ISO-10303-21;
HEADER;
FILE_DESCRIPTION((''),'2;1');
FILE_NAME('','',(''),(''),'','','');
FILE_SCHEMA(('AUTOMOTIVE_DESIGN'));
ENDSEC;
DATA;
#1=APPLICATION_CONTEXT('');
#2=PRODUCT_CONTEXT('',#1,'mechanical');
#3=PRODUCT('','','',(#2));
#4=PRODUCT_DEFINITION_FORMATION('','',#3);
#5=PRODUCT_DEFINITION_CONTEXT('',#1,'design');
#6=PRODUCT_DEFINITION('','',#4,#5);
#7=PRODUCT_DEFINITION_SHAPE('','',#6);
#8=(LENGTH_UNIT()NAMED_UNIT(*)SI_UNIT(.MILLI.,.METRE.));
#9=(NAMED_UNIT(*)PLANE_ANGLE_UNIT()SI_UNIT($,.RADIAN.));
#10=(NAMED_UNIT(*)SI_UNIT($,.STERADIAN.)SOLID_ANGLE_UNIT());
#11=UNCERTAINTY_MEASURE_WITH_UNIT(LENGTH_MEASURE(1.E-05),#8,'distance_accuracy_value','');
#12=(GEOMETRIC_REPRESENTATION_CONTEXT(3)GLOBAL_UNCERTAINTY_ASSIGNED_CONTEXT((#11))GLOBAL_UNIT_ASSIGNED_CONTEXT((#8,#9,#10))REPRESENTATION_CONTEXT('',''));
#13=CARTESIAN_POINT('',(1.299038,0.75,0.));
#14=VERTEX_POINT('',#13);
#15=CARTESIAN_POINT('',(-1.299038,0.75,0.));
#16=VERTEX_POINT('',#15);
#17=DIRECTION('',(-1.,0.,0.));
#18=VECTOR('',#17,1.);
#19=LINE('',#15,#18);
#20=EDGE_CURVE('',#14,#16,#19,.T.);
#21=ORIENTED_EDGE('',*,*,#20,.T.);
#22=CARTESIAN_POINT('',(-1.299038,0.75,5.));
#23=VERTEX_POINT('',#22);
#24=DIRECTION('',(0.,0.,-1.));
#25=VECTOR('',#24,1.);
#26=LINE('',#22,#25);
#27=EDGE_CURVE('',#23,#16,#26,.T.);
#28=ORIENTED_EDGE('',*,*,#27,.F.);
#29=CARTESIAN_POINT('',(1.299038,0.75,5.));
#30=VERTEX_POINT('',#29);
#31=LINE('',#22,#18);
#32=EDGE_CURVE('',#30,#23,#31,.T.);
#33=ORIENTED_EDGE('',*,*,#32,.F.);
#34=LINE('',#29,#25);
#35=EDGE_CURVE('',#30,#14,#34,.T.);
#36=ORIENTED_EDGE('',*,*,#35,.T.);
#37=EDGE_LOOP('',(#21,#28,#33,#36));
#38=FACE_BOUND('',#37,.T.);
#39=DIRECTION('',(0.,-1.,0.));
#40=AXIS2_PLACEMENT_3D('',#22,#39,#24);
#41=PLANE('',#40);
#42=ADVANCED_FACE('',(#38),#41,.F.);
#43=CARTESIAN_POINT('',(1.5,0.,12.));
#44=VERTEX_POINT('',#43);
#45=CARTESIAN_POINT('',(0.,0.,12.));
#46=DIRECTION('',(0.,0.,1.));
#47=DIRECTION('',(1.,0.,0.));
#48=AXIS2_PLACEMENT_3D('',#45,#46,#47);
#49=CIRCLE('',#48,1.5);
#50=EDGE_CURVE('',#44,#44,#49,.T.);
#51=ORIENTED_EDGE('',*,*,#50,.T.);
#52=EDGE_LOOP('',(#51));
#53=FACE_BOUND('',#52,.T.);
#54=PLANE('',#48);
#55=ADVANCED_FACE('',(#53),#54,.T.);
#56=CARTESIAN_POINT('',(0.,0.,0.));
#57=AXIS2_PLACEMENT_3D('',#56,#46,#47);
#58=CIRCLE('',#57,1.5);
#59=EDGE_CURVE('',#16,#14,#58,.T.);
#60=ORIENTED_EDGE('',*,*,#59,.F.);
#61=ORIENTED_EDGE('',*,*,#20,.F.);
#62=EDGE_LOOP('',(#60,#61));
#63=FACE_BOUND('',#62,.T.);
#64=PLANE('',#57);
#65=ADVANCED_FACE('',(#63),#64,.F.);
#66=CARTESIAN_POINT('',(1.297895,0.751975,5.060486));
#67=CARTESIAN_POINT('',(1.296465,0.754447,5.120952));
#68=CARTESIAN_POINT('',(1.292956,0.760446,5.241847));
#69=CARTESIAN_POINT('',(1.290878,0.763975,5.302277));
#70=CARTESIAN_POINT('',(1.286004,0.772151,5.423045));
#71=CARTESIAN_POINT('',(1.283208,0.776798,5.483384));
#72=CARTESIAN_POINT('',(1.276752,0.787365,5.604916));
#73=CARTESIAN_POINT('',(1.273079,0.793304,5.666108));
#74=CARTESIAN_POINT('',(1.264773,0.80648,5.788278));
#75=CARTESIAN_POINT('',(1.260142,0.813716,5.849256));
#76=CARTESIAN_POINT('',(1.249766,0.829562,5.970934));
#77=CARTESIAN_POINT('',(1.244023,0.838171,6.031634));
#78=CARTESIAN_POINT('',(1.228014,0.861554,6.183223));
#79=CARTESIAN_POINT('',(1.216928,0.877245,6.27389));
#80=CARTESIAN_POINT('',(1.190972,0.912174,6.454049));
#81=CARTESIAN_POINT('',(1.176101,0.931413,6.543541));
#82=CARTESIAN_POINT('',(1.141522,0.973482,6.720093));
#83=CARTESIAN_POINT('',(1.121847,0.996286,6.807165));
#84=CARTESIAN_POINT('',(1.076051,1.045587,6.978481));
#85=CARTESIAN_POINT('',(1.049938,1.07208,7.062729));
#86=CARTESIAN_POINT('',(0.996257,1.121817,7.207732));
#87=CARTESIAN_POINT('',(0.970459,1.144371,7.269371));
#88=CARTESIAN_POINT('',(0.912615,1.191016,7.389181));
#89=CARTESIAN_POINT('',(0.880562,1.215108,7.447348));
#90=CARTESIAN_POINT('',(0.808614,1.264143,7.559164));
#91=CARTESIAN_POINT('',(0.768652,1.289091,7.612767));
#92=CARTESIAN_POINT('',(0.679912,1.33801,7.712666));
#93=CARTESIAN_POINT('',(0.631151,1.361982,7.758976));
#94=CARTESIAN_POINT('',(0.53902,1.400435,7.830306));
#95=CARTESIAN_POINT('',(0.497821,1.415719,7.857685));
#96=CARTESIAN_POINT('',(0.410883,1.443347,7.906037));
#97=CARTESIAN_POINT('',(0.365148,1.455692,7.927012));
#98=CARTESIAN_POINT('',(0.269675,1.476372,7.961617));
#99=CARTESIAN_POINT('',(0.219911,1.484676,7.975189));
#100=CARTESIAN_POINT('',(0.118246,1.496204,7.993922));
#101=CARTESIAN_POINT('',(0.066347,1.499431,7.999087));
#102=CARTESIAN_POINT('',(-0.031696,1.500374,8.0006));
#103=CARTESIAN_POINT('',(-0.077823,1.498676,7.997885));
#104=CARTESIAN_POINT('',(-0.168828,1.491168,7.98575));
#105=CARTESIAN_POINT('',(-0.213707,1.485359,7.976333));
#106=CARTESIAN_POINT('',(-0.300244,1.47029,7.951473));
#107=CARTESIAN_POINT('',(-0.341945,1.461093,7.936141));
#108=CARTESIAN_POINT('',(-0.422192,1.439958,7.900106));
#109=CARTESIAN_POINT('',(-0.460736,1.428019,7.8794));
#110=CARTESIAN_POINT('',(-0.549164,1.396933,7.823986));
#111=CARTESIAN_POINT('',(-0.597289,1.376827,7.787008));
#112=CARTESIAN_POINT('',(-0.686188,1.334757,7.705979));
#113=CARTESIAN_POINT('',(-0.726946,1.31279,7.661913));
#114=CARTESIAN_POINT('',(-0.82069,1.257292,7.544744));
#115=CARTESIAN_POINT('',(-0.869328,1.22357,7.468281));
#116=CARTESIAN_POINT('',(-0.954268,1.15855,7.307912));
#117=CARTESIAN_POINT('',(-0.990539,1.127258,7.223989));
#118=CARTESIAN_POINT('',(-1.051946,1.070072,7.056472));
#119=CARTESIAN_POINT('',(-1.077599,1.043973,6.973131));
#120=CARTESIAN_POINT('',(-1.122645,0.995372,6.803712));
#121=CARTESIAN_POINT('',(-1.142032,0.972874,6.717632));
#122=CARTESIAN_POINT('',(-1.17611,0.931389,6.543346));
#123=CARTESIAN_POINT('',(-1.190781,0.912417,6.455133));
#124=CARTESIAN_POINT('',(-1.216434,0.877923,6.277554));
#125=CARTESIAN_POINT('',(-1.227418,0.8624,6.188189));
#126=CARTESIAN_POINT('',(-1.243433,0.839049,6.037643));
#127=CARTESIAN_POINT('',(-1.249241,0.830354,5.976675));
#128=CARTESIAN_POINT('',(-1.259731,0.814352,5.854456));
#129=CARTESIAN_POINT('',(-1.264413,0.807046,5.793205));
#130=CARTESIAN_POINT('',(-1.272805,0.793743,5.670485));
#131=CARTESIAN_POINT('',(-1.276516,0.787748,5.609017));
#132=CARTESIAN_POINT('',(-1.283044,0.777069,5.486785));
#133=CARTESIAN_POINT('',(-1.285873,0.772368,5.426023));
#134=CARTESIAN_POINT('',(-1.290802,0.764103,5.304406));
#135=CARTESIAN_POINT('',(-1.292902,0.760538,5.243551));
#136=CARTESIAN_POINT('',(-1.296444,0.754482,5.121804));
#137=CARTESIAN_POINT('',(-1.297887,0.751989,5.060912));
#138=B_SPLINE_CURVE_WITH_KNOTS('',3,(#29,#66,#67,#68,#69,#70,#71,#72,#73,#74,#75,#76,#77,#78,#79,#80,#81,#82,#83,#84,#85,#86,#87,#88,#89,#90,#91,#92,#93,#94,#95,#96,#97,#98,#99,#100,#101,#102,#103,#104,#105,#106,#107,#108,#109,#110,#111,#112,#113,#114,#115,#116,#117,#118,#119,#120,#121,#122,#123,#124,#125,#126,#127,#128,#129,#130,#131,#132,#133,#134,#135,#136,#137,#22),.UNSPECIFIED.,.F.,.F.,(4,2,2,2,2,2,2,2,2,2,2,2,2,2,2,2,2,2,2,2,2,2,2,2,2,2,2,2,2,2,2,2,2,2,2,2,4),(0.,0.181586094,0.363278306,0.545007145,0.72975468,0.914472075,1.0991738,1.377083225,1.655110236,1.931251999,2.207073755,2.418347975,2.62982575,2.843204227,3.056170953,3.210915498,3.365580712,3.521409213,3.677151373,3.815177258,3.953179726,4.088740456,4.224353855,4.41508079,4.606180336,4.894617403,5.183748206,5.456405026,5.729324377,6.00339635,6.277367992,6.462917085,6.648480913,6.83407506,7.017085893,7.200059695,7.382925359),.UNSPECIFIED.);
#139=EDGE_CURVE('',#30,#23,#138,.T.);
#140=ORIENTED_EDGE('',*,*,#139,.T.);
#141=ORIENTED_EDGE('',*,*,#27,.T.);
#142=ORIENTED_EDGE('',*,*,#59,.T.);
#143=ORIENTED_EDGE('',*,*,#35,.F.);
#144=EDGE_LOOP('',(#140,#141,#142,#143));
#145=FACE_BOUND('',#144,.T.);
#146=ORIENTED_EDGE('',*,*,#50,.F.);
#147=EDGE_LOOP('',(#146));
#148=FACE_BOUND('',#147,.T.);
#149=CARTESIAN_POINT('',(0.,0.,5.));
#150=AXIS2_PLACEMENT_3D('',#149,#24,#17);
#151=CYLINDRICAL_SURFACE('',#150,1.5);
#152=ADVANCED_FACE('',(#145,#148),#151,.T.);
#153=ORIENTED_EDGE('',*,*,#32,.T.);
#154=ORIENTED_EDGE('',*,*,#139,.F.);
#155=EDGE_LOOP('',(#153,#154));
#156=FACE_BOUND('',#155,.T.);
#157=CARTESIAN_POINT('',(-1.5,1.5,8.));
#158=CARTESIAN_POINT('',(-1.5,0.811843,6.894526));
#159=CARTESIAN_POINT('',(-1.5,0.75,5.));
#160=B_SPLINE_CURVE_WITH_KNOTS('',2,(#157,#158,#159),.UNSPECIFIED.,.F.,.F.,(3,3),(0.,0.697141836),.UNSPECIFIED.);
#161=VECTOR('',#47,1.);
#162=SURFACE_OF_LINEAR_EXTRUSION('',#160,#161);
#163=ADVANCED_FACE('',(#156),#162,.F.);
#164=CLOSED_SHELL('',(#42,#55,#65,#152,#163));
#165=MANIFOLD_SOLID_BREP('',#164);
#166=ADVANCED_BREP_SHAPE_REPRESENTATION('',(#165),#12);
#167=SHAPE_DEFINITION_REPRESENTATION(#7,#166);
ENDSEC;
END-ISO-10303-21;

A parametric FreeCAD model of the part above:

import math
import FreeCAD as App
import Part
import Sketcher

doc = App.newDocument("Part")
body = doc.addObject("PartDesign::Body", "Body")

# Sketch on XY plane
sketch1 = doc.addObject("Sketcher::SketchObject", "Sketch")
body.addObject(sketch1)
sketch1.AttachmentSupport = (doc.XY_Plane, [""])
sketch1.MapMode = "FlatFace"
sketch1.addGeometry(Part.LineSegment(App.Vector(1.3, 0.8, 0), App.Vector(-1.3, 0.8, 0)), False)
sketch1.addGeometry(Part.ArcOfCircle(Part.Circle(App.Vector(0, 0, 0), App.Vector(0, 0, 1), 1.5), math.radians(150), math.radians(390)), False)
sketch1.addConstraint(Sketcher.Constraint("Coincident", 0, 1, 1, 2))
sketch1.addConstraint(Sketcher.Constraint("Coincident", 1, 1, 0, 2))
sketch1.addConstraint(Sketcher.Constraint("Horizontal", 0))
sketch1.addConstraint(Sketcher.Constraint("Coincident", 1, 3, -1, 1))
sketch1.addConstraint(Sketcher.Constraint("Radius", 1, 1.5))
sketch1.addConstraint(Sketcher.Constraint("DistanceY", -1, 1, 0, 1, 0.75))
pad1 = doc.addObject("PartDesign::Pad", "Pad")
body.addObject(pad1)
pad1.Profile = sketch1
pad1.Length = 5

# Sketch on XY plane
sketch2 = doc.addObject("Sketcher::SketchObject", "Sketch001")
body.addObject(sketch2)
sketch2.AttachmentSupport = (doc.XY_Plane, [""])
sketch2.MapMode = "FlatFace"
sketch2.AttachmentOffset = App.Placement(App.Vector(0, 0, 5), App.Rotation())
sketch2.addGeometry(Part.Circle(App.Vector(0, 0, 0), App.Vector(0, 0, 1), 1.5), False)
sketch2.addConstraint(Sketcher.Constraint("Coincident", 0, 3, -1, 1))
sketch2.addConstraint(Sketcher.Constraint("Diameter", 0, 3.0))
pad2 = doc.addObject("PartDesign::Pad", "Pad001")
body.addObject(pad2)
pad2.Profile = sketch2
pad2.Length = 7

# Sketch on YZ plane
sketch3 = doc.addObject("Sketcher::SketchObject", "Sketch002")
body.addObject(sketch3)
sketch3.AttachmentSupport = (doc.YZ_Plane, [""])
sketch3.MapMode = "FlatFace"
sketch3.AttachmentOffset = App.Placement(App.Vector(0, 0, 1.5), App.Rotation())
sketch3.addGeometry(Part.LineSegment(App.Vector(1.5, 5, 0), App.Vector(1.5, 8, 0)), False)
sketch3.addGeometry(Part.BSplineCurve([App.Vector(1.5, 8, 0), App.Vector(0.811843, 6.894526, 0), App.Vector(0.75, 5, 0)], [3, 3], [0, 0.697141836], False, 2, [1, 1, 1], False), False)
sketch3.addGeometry(Part.LineSegment(App.Vector(0.75, 5, 0), App.Vector(1.5, 5, 0)), False)
sketch3.addConstraint(Sketcher.Constraint("Block", 1))
sketch3.addConstraint(Sketcher.Constraint("Coincident", 0, 2, 1, 1))
sketch3.addConstraint(Sketcher.Constraint("Coincident", 1, 2, 2, 1))
sketch3.addConstraint(Sketcher.Constraint("Coincident", 2, 2, 0, 1))
sketch3.addConstraint(Sketcher.Constraint("Vertical", 0))
sketch3.addConstraint(Sketcher.Constraint("Horizontal", 2))
pocket1 = doc.addObject("PartDesign::Pocket", "Pocket")
body.addObject(pocket1)
pocket1.Profile = sketch3
pocket1.Length = 3

doc.recompute()
